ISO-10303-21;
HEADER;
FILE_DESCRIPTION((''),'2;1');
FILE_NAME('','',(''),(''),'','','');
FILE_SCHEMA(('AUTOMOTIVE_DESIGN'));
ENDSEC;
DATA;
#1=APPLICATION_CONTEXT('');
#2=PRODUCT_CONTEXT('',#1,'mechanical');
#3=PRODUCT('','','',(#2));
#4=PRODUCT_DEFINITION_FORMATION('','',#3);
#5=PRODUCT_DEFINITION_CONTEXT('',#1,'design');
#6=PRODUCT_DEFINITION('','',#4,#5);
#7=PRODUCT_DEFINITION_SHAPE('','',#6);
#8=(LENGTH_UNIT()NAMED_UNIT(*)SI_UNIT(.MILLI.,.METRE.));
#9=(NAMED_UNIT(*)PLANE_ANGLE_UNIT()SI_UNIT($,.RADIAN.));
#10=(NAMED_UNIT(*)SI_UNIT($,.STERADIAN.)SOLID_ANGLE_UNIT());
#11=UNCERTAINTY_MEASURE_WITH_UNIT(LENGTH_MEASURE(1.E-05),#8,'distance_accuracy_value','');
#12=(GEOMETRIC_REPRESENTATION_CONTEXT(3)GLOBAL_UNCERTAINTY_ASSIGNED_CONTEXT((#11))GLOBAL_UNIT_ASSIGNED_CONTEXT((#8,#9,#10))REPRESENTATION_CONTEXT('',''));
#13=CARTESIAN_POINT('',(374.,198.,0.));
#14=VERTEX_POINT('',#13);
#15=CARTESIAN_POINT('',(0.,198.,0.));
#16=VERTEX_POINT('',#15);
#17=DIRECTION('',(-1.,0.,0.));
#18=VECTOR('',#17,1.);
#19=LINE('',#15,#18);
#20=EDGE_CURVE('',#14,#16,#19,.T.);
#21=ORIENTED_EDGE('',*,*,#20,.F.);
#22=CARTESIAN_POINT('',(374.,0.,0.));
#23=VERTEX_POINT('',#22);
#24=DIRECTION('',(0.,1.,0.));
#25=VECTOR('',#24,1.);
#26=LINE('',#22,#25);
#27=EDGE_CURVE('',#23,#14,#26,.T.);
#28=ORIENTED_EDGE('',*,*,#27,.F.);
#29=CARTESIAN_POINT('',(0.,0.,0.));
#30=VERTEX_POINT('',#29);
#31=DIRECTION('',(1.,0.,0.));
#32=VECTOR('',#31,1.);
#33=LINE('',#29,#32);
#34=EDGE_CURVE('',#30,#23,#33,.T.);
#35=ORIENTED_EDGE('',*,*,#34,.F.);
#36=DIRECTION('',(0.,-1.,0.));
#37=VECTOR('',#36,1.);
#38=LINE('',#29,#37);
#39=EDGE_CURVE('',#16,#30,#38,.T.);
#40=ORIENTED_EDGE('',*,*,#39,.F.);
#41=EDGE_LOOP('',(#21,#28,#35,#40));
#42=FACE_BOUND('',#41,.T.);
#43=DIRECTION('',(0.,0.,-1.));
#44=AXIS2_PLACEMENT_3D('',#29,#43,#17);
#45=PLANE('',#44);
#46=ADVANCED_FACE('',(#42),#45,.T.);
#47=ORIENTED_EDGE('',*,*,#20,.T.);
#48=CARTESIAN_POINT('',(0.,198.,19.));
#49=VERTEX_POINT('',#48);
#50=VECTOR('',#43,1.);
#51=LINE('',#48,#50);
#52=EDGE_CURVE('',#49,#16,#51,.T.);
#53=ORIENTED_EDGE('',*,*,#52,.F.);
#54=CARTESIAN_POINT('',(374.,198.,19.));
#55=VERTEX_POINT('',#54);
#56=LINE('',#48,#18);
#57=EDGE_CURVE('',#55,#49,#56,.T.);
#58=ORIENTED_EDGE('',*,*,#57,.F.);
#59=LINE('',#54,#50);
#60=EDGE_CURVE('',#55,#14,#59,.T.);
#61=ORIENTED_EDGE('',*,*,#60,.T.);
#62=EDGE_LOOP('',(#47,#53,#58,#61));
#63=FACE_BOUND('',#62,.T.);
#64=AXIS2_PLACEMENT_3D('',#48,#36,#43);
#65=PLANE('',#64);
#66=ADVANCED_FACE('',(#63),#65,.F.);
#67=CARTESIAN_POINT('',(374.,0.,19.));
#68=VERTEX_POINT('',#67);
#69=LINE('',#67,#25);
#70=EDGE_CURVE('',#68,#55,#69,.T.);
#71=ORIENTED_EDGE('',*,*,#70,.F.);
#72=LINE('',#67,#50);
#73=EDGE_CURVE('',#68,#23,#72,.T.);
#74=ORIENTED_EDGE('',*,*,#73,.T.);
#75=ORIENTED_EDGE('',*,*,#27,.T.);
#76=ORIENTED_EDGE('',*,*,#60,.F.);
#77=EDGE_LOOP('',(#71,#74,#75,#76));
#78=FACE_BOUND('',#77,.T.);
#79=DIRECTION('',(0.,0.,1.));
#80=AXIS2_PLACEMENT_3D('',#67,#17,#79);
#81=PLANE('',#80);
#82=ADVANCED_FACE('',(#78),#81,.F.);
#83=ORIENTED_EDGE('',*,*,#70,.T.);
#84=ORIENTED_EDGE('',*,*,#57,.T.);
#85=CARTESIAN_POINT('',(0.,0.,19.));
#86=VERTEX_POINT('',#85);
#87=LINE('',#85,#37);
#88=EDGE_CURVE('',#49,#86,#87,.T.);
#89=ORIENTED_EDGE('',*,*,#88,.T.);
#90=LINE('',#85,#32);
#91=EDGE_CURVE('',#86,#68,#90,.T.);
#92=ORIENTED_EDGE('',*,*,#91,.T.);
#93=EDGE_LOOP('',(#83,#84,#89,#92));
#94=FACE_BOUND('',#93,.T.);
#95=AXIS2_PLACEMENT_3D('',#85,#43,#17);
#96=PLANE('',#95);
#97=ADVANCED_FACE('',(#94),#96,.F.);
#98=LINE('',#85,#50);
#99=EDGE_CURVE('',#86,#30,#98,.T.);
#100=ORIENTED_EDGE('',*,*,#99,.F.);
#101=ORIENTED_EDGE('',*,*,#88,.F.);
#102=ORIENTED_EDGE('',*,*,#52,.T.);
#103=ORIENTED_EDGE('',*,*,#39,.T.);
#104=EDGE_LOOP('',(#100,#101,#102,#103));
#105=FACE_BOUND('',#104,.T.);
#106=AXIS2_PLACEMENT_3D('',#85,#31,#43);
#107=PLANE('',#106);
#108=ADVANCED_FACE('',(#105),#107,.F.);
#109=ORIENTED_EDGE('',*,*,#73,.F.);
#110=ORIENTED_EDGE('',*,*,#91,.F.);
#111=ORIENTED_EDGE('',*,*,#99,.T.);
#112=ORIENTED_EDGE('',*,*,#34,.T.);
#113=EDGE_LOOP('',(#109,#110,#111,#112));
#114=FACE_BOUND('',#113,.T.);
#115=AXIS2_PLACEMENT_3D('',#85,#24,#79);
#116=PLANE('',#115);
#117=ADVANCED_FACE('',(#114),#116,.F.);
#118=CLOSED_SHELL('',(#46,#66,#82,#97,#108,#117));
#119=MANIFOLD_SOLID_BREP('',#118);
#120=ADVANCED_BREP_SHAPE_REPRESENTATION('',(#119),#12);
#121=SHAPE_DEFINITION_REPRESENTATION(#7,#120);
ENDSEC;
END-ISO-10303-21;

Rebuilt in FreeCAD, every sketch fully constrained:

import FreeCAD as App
import Part
import Sketcher

V = App.Vector
Q = App.Units.Quantity


def add_polygon(sketch, points):
    """Adds a closed chain of lines whose ends are joined by coincident constraints."""
    first, n = sketch.GeometryCount, len(points)
    for a, b in zip(points, points[1:] + points[:1]):
        sketch.addGeometry(Part.LineSegment(App.Vector(*a, 0), App.Vector(*b, 0)), False)
    for i in range(n):
        sketch.addConstraint(Sketcher.Constraint("Coincident", first + i, 2, first + (i + 1) % n, 1))

doc = App.newDocument("Part")
body = doc.addObject("PartDesign::Body", "Body")

sketch1 = body.newObject("Sketcher::SketchObject", "Sketch")
sketch1.AttachmentSupport = (doc.getObject("XY_Plane"), [""])
sketch1.MapMode = "FlatFace"
add_polygon(sketch1, [(0, 198), (0, 0), (374, 0), (374, 198)])
sketch1.addConstraint([
    Sketcher.Constraint("Vertical", 0),
    Sketcher.Constraint("Horizontal", 1),
    Sketcher.Constraint("Vertical", 2),
    Sketcher.Constraint("Horizontal", 3),
    Sketcher.Constraint("Coincident", 0, 2, -1, 1),
    Sketcher.Constraint("DistanceX", 1, 1, 1, 2, Q("374 mm")),
    Sketcher.Constraint("DistanceY", 0, 2, 0, 1, Q("198 mm")),
])
pad1 = body.newObject("PartDesign::Pad", "Pad")
pad1.Profile = sketch1
pad1.Length = 19

doc.recompute()
